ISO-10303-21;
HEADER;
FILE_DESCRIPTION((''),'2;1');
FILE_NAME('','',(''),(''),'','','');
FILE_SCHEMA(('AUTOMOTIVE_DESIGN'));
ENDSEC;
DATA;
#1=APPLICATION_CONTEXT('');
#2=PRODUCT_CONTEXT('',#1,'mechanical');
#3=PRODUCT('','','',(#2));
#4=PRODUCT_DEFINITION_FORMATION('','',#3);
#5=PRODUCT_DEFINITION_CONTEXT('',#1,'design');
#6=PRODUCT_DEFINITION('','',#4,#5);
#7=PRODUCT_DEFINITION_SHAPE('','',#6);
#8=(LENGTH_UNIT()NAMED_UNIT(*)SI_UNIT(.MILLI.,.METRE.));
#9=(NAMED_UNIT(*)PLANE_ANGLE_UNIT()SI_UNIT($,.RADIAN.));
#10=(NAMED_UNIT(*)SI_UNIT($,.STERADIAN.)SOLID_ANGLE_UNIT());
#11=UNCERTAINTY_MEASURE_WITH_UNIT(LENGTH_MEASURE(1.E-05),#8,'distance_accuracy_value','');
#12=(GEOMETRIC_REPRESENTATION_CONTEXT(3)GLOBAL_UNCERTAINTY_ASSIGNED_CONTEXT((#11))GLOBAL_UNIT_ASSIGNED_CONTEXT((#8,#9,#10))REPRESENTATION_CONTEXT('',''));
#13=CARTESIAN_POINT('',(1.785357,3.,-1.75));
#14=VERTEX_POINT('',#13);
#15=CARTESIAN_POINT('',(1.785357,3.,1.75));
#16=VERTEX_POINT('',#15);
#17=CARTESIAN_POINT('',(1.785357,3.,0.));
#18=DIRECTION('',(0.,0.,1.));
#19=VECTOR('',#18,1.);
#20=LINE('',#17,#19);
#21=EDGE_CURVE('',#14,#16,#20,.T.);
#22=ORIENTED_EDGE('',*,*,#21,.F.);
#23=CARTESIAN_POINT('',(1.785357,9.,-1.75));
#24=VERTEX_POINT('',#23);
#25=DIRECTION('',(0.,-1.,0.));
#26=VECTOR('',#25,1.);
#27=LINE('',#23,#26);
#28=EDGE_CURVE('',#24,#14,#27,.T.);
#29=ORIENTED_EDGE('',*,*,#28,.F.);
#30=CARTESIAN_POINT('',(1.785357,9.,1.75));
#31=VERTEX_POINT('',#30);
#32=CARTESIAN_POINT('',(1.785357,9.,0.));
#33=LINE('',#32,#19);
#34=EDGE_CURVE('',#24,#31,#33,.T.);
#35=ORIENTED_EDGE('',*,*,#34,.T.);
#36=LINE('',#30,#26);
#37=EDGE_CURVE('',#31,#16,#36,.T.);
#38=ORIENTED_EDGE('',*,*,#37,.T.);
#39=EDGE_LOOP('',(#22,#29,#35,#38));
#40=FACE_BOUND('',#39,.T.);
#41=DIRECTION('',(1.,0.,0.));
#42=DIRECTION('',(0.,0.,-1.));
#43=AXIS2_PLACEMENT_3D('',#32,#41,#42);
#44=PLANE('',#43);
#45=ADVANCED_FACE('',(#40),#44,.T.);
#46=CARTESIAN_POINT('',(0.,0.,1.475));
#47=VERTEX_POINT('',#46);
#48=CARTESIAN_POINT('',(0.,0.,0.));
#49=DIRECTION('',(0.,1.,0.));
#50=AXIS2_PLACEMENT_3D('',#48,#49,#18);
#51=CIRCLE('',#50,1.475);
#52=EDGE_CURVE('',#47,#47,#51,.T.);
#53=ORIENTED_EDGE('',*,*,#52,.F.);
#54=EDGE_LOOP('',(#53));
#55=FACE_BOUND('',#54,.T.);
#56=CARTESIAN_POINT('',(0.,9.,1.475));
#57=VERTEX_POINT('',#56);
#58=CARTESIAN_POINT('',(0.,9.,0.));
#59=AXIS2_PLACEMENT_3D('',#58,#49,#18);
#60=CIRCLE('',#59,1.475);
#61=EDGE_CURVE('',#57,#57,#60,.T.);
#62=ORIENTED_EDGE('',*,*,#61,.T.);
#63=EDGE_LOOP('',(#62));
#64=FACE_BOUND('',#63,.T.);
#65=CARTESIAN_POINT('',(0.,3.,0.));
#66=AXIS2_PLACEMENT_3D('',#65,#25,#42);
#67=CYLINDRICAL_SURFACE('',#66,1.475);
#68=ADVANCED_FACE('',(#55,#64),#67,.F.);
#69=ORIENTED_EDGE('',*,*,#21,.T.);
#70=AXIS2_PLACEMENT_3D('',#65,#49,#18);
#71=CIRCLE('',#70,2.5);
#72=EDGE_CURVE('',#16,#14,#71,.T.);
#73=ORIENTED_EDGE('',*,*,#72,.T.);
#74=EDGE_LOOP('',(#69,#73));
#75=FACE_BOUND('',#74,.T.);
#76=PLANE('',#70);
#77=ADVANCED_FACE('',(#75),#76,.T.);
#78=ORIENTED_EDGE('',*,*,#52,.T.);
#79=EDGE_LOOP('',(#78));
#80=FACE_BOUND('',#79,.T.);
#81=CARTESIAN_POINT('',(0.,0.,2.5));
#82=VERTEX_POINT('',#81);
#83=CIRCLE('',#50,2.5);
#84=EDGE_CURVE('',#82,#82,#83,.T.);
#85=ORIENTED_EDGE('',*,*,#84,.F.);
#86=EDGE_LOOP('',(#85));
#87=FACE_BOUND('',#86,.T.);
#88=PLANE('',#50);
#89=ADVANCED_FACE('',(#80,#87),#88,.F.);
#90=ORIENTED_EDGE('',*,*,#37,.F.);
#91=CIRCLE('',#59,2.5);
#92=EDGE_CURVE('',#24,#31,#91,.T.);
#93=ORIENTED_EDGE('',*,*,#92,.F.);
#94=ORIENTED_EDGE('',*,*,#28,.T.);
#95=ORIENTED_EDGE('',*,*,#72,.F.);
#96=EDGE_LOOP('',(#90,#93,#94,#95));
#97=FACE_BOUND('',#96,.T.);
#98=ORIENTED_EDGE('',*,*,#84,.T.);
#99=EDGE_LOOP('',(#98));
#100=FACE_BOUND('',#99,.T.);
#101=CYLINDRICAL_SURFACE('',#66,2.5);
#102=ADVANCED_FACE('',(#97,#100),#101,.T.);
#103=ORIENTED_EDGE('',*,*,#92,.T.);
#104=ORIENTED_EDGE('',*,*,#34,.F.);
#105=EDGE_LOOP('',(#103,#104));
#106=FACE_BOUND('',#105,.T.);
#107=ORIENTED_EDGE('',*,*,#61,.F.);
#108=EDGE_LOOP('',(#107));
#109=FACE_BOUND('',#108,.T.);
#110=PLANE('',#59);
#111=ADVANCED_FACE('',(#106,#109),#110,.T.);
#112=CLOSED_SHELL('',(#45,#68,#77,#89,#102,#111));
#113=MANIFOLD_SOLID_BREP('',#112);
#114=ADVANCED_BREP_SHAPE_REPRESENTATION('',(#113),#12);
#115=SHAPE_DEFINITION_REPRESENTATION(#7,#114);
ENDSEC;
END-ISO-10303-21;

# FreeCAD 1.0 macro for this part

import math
import FreeCAD as App
import Part
import Sketcher

doc = App.newDocument("Part")
body = doc.addObject("PartDesign::Body", "Body")

# Sketch on XZ plane
sketch1 = body.newObject("Sketcher::SketchObject", "Sketch")
sketch1.AttachmentSupport = (doc.getObject("XZ_Plane"), [""])
sketch1.MapMode = "FlatFace"
sketch1.addGeometry(Part.ArcOfCircle(Part.Circle(App.Vector(0, 0, 0), App.Vector(0, 0, 1), 2.5), math.radians(44), math.radians(316)), False)
sketch1.addGeometry(Part.ArcOfCircle(Part.Circle(App.Vector(0, 0, 0), App.Vector(0, 0, 1), 2.5), math.radians(0), math.radians(44)), False)
sketch1.addGeometry(Part.ArcOfCircle(Part.Circle(App.Vector(0, 0, 0), App.Vector(0, 0, 1), 2.5), math.radians(-44), math.radians(0)), False)
sketch1.addGeometry(Part.Circle(App.Vector(0, 0, 0), App.Vector(0, 0, 1), 1.5), False)
sketch1.addConstraint(Sketcher.Constraint("Tangent", 0, 1, 1, 2))
sketch1.addConstraint(Sketcher.Constraint("Tangent", 1, 1, 2, 2))
sketch1.addConstraint(Sketcher.Constraint("Tangent", 2, 1, 0, 2))
sketch1.addConstraint(Sketcher.Constraint("Coincident", 0, 3, -1, 1))
sketch1.addConstraint(Sketcher.Constraint("Coincident", 3, 3, -1, 1))
sketch1.addConstraint(Sketcher.Constraint("PointOnObject", 1, 1, -1))
sketch1.addConstraint(Sketcher.Constraint("Vertical", 0, 1, 2, 1))
sketch1.addConstraint(Sketcher.Constraint("Radius", 0, 2.5))
sketch1.addConstraint(Sketcher.Constraint("Diameter", 3, 2.95))
sketch1.addConstraint(Sketcher.Constraint("DistanceY", -1, 1, 0, 1, 1.75))
pad1 = body.newObject("PartDesign::Pad", "Pad")
pad1.Profile = sketch1
pad1.Length = 3
pad1.Reversed = True

# Sketch on XZ plane
sketch2 = body.newObject("Sketcher::SketchObject", "Sketch001")
sketch2.AttachmentSupport = (doc.getObject("XZ_Plane"), [""])
sketch2.MapMode = "FlatFace"
sketch2.AttachmentOffset = App.Placement(App.Vector(0, 0, -3), App.Rotation())
sketch2.addGeometry(Part.ArcOfCircle(Part.Circle(App.Vector(0, 0, 0), App.Vector(0, 0, 1), 2.5), math.radians(44), math.radians(316)), False)
sketch2.addGeometry(Part.LineSegment(App.Vector(1.8, 1.8, 0), App.Vector(1.8, -1.8, 0)), False)
sketch2.addGeometry(Part.Circle(App.Vector(0, 0, 0), App.Vector(0, 0, 1), 1.5), False)
sketch2.addConstraint(Sketcher.Constraint("Coincident", 0, 1, 1, 1))
sketch2.addConstraint(Sketcher.Constraint("Coincident", 1, 2, 0, 2))
sketch2.addConstraint(Sketcher.Constraint("Vertical", 1))
sketch2.addConstraint(Sketcher.Constraint("Coincident", 0, 3, -1, 1))
sketch2.addConstraint(Sketcher.Constraint("Coincident", 2, 3, -1, 1))
sketch2.addConstraint(Sketcher.Constraint("Radius", 0, 2.5))
sketch2.addConstraint(Sketcher.Constraint("Diameter", 2, 2.95))
sketch2.addConstraint(Sketcher.Constraint("DistanceY", 1, 2, 1, 1, 3.5))
pad2 = body.newObject("PartDesign::Pad", "Pad001")
pad2.Profile = sketch2
pad2.Length = 6
pad2.Reversed = True

doc.recompute()
